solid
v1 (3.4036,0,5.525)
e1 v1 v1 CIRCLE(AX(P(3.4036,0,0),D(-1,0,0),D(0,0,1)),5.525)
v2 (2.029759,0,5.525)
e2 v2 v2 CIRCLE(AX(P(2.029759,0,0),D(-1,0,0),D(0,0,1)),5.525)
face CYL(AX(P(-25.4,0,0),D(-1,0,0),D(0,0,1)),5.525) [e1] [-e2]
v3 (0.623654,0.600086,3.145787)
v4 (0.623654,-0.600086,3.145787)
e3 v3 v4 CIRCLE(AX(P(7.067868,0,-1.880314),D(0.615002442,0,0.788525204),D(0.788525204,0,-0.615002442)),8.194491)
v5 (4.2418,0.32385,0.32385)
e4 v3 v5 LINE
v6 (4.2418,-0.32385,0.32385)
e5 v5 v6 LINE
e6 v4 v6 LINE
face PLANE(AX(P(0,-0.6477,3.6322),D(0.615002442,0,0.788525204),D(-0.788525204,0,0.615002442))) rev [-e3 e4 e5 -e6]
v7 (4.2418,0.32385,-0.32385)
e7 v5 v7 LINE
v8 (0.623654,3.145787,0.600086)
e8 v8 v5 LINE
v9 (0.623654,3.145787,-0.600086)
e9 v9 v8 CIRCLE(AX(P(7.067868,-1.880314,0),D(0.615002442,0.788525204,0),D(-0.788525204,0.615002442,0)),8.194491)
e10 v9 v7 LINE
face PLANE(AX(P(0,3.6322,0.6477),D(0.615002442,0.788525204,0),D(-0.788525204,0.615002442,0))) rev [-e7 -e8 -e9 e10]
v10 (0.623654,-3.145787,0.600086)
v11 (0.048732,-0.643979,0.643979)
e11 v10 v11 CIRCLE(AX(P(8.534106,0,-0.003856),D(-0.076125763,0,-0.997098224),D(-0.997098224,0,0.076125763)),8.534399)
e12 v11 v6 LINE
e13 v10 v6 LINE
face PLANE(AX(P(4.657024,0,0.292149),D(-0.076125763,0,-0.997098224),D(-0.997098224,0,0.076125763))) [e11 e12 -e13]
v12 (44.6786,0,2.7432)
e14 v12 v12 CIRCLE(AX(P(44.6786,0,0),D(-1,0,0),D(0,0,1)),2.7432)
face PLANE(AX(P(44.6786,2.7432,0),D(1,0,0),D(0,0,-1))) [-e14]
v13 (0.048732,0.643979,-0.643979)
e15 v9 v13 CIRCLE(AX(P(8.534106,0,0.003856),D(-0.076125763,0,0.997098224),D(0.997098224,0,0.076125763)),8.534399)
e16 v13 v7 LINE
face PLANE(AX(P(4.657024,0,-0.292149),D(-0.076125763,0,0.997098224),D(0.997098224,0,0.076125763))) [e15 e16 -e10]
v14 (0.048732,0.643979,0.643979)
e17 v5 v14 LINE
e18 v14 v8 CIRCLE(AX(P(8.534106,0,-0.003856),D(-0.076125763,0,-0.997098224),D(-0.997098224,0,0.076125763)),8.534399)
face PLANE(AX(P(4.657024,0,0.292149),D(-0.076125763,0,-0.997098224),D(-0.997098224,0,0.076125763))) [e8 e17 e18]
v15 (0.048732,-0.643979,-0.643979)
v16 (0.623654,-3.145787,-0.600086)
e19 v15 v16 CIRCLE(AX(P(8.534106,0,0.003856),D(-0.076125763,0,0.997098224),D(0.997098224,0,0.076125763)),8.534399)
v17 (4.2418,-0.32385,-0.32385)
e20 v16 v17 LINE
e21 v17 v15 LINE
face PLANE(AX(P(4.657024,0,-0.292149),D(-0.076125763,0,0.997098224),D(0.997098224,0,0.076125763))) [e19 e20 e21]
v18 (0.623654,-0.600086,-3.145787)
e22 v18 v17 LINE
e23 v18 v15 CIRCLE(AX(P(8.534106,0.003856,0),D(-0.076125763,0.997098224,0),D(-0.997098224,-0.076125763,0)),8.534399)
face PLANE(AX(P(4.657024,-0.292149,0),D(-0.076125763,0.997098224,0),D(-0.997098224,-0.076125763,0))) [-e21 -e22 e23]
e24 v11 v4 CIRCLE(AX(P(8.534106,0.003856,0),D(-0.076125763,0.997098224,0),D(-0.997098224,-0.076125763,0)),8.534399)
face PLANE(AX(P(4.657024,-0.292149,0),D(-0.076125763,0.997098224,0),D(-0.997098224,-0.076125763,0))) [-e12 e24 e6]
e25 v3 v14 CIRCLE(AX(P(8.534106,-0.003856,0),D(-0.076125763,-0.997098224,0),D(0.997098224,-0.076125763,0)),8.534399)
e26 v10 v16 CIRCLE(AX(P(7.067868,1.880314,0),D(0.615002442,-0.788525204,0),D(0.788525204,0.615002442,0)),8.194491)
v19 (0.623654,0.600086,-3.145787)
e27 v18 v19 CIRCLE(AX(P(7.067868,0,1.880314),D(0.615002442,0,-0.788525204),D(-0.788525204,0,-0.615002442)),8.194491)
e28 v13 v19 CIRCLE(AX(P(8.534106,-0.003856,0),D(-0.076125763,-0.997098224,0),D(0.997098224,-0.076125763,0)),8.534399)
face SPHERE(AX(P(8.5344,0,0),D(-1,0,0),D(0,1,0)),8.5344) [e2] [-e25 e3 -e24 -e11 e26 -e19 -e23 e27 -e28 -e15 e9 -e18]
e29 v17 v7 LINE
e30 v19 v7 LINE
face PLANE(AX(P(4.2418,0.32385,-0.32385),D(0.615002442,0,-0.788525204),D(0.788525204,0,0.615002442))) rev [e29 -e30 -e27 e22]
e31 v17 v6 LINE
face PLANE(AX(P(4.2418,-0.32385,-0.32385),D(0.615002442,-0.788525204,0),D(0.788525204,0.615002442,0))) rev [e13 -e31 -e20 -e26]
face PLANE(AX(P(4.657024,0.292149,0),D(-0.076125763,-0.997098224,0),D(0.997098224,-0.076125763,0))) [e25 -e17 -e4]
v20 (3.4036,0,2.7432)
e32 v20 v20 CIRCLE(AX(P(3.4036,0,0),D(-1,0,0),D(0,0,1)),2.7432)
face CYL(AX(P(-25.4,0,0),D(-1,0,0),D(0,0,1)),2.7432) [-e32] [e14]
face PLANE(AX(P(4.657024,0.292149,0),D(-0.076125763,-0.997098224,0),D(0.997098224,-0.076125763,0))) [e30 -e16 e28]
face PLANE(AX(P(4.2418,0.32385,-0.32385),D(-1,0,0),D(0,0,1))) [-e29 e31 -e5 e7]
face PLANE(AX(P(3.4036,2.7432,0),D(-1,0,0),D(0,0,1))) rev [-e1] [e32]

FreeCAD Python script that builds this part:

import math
import FreeCAD as App
import Part
import Sketcher

V = App.Vector
Q = App.Units.Quantity


def add_polygon(sketch, points):
    """Adds a closed chain of lines whose ends are joined by coincident constraints."""
    first, n = sketch.GeometryCount, len(points)
    for a, b in zip(points, points[1:] + points[:1]):
        sketch.addGeometry(Part.LineSegment(App.Vector(*a, 0), App.Vector(*b, 0)), False)
    for i in range(n):
        sketch.addConstraint(Sketcher.Constraint("Coincident", first + i, 2, first + (i + 1) % n, 1))

doc = App.newDocument("Part")
body = doc.addObject("PartDesign::Body", "Body")

# Sketch on XY plane
sketch1 = doc.addObject("Sketcher::SketchObject", "Sketch")
body.addObject(sketch1)
sketch1.AttachmentSupport = (doc.XY_Plane, [""])
sketch1.MapMode = "FlatFace"
sketch1.addGeometry([
    Part.LineSegment(V(3.4, 2.7, 0), V(3.4, 5.5, 0)),  # 0
    Part.LineSegment(V(3.4, 5.5, 0), V(2, 5.5, 0)),  # 1
    Part.ArcOfCircle(Part.Circle(V(8.5, 0, 0), V(0, 0, 1), 8.5), math.radians(140), math.radians(180)),  # 2
    Part.LineSegment(V(0, 0, 0), V(44.7, 0, 0)),  # 3
    Part.LineSegment(V(44.7, 0, 0), V(44.7, 2.7, 0)),  # 4
    Part.LineSegment(V(44.7, 2.7, 0), V(3.4, 2.7, 0)),  # 5
], False)
sketch1.addConstraint([
    Sketcher.Constraint("Coincident", 0, 2, 1, 1),
    Sketcher.Constraint("Coincident", 1, 2, 2, 1),
    Sketcher.Constraint("Coincident", 2, 2, 3, 1),
    Sketcher.Constraint("Coincident", 3, 2, 4, 1),
    Sketcher.Constraint("Coincident", 4, 2, 5, 1),
    Sketcher.Constraint("Coincident", 5, 2, 0, 1),
    Sketcher.Constraint("Vertical", 0),
    Sketcher.Constraint("Horizontal", 1),
    Sketcher.Constraint("Horizontal", 3),
    Sketcher.Constraint("Vertical", 4),
    Sketcher.Constraint("Horizontal", 5),
    Sketcher.Constraint("Coincident", 2, 2, -1, 1),
    Sketcher.Constraint("PointOnObject", 2, 3, -1),
    Sketcher.Constraint("Radius", 2, Q("0.336 in")),
    Sketcher.Constraint("DistanceX", 3, 1, 3, 2, Q("1.759 in")),
    Sketcher.Constraint("DistanceX", 5, 2, 5, 1, Q("1.625 in")),
    Sketcher.Constraint("DistanceY", 4, 1, 4, 2, Q("0.108 in")),
    Sketcher.Constraint("DistanceY", 0, 1, 0, 2, Q("2.7818 mm")),
])
revolution = doc.addObject("PartDesign::Revolution", "Revolution")
body.addObject(revolution)
revolution.Profile = sketch1
revolution.ReferenceAxis = (sketch1, ["H_Axis"])
revolution.Angle = 360

# Sketch on YZ plane
sketch2 = doc.addObject("Sketcher::SketchObject", "Sketch001")
body.addObject(sketch2)
sketch2.AttachmentSupport = (doc.YZ_Plane, [""])
sketch2.MapMode = "FlatFace"
add_polygon(sketch2, [(-3.6, 0.6), (-3.6, -0.6), (3.6, -0.6), (3.6, 0.6)])  # lines 0-3
sketch2.addConstraint([
    Sketcher.Constraint("Vertical", 0),
    Sketcher.Constraint("Horizontal", 1),
    Sketcher.Constraint("Vertical", 2),
    Sketcher.Constraint("Horizontal", 3),
    Sketcher.Constraint("Symmetric", 0, 2, 2, 2, -1, 1),
    Sketcher.Constraint("DistanceX", 1, 1, 1, 2, Q("0.286 in")),
    Sketcher.Constraint("DistanceY", 0, 2, 0, 1, Q("0.051 in")),
])

# Sketch on YZ plane
sketch3 = doc.addObject("Sketcher::SketchObject", "Sketch002")
body.addObject(sketch3)
sketch3.AttachmentSupport = (doc.YZ_Plane, [""])
sketch3.MapMode = "FlatFace"
sketch3.AttachmentOffset = App.Placement(V(0, 0, 0.167 * 25.4), App.Rotation())
add_polygon(sketch3, [(-0.3, 0.3), (-0.3, -0.3), (0.3, -0.3), (0.3, 0.3)])  # lines 0-3
sketch3.addConstraint([
    Sketcher.Constraint("Vertical", 0),
    Sketcher.Constraint("Horizontal", 1),
    Sketcher.Constraint("Vertical", 2),
    Sketcher.Constraint("Horizontal", 3),
    Sketcher.Constraint("Symmetric", 0, 2, 2, 2, -1, 1),
    Sketcher.Constraint("Equal", 3, 0),
    Sketcher.Constraint("DistanceX", 1, 1, 1, 2, Q("0.0255 in")),
])

subtractiveloft = doc.addObject("PartDesign::SubtractiveLoft", "SubtractiveLoft")
body.addObject(subtractiveloft)
subtractiveloft.Profile = sketch2
subtractiveloft.Sections = [sketch3]
doc.recompute()

polarpattern = doc.addObject("PartDesign::PolarPattern", "PolarPattern")
body.addObject(polarpattern)
polarpattern.Originals = [subtractiveloft]
polarpattern.Axis = (doc.X_Axis, [""])
polarpattern.Angle = 90
polarpattern.Occurrences = 2
body.Tip = polarpattern

doc.recompute()
